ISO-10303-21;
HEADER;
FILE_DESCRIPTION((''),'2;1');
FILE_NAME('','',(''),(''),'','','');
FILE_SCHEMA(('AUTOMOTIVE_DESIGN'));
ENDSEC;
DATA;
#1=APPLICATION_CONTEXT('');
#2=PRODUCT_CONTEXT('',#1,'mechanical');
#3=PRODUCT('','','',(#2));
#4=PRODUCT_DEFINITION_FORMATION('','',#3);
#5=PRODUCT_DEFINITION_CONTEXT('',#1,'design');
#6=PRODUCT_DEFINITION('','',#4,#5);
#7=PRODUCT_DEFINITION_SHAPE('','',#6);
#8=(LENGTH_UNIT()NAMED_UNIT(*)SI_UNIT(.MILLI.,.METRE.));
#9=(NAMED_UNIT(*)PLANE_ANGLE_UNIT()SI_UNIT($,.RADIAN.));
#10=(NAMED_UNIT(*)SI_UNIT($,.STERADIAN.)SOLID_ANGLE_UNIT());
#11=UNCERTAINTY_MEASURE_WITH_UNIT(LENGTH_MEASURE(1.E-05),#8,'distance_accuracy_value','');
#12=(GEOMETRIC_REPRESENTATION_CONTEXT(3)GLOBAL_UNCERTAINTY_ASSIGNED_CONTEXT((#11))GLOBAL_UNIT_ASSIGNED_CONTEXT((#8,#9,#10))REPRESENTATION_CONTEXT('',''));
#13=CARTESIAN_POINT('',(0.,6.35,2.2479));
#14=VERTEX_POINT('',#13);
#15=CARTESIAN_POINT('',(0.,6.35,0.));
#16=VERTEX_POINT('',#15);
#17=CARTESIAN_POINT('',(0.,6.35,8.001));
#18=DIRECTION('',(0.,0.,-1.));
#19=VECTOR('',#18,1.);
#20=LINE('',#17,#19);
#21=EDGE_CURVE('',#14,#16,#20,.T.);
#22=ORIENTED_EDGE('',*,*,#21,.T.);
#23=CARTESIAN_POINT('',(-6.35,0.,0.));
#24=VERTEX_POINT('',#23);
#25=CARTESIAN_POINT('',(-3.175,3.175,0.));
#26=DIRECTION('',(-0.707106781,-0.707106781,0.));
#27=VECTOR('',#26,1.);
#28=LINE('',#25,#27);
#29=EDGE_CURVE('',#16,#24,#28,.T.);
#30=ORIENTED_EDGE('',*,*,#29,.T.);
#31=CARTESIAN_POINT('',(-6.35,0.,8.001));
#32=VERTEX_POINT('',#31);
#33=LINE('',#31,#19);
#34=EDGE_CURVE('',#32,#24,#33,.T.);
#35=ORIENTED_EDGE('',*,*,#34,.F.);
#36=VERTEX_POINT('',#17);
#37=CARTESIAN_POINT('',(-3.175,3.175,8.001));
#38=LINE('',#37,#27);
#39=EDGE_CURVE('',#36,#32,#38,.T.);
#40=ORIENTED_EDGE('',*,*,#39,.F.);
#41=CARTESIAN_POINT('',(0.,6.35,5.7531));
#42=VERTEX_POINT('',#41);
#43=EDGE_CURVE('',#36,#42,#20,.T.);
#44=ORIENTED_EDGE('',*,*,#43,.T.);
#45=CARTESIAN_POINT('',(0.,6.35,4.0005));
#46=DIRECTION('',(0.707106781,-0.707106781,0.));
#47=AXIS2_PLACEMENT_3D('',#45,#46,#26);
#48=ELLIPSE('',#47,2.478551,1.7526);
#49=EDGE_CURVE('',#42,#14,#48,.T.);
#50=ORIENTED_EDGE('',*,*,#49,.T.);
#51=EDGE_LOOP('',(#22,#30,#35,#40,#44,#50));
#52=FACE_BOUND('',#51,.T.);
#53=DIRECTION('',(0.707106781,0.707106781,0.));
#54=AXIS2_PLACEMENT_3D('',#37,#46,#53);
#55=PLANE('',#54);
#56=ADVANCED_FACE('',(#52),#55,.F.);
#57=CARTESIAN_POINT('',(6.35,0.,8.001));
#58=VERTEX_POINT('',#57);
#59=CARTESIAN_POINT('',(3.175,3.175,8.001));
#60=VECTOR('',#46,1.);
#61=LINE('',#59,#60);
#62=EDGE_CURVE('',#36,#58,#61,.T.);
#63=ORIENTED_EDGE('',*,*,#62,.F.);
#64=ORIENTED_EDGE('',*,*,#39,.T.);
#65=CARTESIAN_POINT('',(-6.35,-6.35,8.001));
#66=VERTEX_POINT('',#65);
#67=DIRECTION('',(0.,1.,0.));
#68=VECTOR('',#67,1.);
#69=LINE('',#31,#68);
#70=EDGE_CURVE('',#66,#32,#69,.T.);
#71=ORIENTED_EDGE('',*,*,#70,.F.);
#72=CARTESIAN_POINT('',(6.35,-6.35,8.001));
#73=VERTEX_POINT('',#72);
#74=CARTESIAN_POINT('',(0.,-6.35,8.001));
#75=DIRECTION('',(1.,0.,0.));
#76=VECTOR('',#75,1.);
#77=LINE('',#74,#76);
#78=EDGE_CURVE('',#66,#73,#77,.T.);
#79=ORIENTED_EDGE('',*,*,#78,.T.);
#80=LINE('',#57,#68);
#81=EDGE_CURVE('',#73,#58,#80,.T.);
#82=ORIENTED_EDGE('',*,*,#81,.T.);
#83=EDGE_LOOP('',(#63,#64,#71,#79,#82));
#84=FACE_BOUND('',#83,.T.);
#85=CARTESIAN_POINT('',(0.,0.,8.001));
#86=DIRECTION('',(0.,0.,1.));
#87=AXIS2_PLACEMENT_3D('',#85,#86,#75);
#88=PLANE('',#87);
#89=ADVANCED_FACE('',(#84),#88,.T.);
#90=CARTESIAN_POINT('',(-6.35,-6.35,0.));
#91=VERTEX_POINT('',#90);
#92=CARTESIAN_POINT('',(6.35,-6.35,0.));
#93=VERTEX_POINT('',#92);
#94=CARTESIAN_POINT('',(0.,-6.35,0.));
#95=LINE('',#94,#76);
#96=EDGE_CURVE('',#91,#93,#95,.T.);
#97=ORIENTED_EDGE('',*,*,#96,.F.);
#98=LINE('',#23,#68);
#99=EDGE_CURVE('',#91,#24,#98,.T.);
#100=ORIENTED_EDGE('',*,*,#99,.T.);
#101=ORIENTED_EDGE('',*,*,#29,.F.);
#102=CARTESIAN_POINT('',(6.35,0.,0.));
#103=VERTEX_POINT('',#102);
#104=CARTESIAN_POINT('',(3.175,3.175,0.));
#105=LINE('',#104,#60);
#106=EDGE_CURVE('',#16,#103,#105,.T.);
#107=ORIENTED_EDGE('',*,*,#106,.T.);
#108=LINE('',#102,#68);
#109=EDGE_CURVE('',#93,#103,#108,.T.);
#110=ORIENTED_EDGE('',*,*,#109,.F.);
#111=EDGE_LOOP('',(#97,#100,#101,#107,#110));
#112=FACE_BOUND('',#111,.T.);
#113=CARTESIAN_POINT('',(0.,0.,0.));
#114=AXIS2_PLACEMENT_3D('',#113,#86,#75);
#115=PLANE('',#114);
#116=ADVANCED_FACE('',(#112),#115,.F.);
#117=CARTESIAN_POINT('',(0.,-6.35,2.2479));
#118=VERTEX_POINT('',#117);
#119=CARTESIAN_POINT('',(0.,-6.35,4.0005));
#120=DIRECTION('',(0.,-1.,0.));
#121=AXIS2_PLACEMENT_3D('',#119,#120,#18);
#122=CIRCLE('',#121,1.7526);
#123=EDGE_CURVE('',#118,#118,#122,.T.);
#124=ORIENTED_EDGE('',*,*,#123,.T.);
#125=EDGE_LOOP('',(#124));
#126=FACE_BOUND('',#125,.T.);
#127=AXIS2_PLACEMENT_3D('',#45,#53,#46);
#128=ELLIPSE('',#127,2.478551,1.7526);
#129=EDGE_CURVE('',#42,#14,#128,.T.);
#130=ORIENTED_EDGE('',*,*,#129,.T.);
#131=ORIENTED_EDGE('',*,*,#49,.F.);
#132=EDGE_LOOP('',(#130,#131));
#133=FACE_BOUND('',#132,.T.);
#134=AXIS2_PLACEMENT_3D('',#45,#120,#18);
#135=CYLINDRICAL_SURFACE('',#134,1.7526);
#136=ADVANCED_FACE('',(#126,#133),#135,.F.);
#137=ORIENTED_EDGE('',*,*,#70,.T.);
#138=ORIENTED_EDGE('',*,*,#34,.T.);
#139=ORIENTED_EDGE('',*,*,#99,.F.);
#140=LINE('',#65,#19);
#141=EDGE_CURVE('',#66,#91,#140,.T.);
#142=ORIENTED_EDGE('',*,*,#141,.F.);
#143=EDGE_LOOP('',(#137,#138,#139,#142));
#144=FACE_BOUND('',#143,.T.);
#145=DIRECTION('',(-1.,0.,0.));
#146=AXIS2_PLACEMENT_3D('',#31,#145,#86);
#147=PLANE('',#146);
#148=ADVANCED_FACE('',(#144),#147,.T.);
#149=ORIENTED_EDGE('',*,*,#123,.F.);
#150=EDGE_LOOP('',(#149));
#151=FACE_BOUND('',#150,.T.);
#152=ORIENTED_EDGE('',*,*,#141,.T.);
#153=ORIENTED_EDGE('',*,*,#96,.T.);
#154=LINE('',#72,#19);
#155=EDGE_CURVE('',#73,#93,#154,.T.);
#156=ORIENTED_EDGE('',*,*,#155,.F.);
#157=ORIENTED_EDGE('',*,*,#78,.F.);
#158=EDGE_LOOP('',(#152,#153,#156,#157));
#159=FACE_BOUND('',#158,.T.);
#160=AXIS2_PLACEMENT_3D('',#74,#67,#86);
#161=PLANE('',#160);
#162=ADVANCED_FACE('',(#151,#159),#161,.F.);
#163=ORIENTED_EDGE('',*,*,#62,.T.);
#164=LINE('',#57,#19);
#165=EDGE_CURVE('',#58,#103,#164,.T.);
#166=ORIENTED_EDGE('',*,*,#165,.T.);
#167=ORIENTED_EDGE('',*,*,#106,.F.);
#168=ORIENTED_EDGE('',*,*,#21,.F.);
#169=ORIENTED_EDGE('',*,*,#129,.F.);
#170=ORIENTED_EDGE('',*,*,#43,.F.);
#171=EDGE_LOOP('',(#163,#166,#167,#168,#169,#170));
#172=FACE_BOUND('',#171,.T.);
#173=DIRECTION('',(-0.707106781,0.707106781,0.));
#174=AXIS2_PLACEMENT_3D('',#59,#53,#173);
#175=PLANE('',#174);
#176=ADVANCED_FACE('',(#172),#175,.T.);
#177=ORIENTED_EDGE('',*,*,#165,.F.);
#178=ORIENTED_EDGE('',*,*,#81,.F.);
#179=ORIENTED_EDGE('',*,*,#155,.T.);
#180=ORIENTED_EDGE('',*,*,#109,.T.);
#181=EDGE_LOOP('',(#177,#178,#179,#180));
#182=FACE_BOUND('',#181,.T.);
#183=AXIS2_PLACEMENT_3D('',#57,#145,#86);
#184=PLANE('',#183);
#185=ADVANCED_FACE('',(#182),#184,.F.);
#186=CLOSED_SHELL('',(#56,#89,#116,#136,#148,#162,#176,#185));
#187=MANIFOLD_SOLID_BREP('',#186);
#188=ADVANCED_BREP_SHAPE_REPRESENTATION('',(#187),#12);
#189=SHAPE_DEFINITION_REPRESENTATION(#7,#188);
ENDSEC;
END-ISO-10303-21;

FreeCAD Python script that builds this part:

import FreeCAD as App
import Part
import Sketcher
from FreeCAD import Vector
Q = App.Units.Quantity

doc = App.newDocument("Part")
params = doc.addObject("Spreadsheet::Sheet", "Params")
for row, (alias, value) in enumerate([
    ("sketch1_width", "0.5 in"),
    ("sketch1_height", "0.25 in"),
    ("pad1_length", "0.315 in"),
    ("sketch2_diameter", "0.138 in"),
], start=1):
    params.set(f"A{row}", alias)
    params.set(f"B{row}", "=" + value)
    params.setAlias(f"B{row}", alias)

body = doc.addObject("PartDesign::Body", "Body")

# Sketch on XY plane
sketch1 = body.newObject("Sketcher::SketchObject", "Sketch")
sketch1.AttachmentSupport = (doc.getObject("XY_Plane"), [""])
sketch1.MapMode = "FlatFace"
sketch1.addGeometry([
    Part.LineSegment(Vector(6, 0, 0), Vector(0, 6, 0)),  # 0
    Part.LineSegment(Vector(0, 6, 0), Vector(-6, 0, 0)),  # 1
    Part.LineSegment(Vector(-6, 0, 0), Vector(-6, -6, 0)),  # 2
    Part.LineSegment(Vector(-6, -6, 0), Vector(6, -6, 0)),  # 3
    Part.LineSegment(Vector(6, -6, 0), Vector(6, 0, 0)),  # 4
], False)
sketch1.addConstraint([
    Sketcher.Constraint("Coincident", 0, 2, 1, 1),
    Sketcher.Constraint("Coincident", 1, 2, 2, 1),
    Sketcher.Constraint("Coincident", 2, 2, 3, 1),
    Sketcher.Constraint("Coincident", 3, 2, 4, 1),
    Sketcher.Constraint("Coincident", 4, 2, 0, 1),
    Sketcher.Constraint("Vertical", 2),
    Sketcher.Constraint("Horizontal", 3),
    Sketcher.Constraint("Vertical", 4),
    Sketcher.Constraint("Symmetric", 1, 2, 4, 2, -1, 1),
    Sketcher.Constraint("PointOnObject", 0, 2, -2),
    Sketcher.Constraint("PointOnObject", 1, 2, -1),
    Sketcher.Constraint("Perpendicular", 0, 1),
    Sketcher.Constraint("DistanceX", 3, 1, 3, 2, Q("0.5 in")),
    Sketcher.Constraint("DistanceY", 2, 2, 2, 1, Q("0.25 in")),
])
sketch1.setExpression("Constraints[12]", "Params.sketch1_width")
sketch1.setExpression("Constraints[13]", "Params.sketch1_height")
pad1 = body.newObject("PartDesign::Pad", "Pad")
pad1.Profile = sketch1
pad1.setExpression("Length", "Params.pad1_length")

# Sketch on XZ plane
sketch2 = body.newObject("Sketcher::SketchObject", "Sketch001")
sketch2.AttachmentSupport = (doc.getObject("XZ_Plane"), [""])
sketch2.MapMode = "FlatFace"
sketch2.AttachmentOffset = App.Placement(Vector(0, 0, 0.25 * 25.4), App.Rotation())
sketch2.addGeometry(Part.Circle(Vector(0, 4, 0), Vector(0, 0, 1), 1.8), False)
sketch2.addConstraint([
    Sketcher.Constraint("PointOnObject", 0, 3, -2),
    Sketcher.Constraint("Diameter", 0, Q("0.138 in")),
    Sketcher.Constraint("DistanceY", -1, 1, 0, 3, Q("0.1575 in")),
])
sketch2.setExpression("Constraints[1]", "Params.sketch2_diameter")
pocket1 = body.newObject("PartDesign::Pocket", "Pocket")
pocket1.Profile = sketch2
pocket1.Type = "ThroughAll"

doc.recompute()
